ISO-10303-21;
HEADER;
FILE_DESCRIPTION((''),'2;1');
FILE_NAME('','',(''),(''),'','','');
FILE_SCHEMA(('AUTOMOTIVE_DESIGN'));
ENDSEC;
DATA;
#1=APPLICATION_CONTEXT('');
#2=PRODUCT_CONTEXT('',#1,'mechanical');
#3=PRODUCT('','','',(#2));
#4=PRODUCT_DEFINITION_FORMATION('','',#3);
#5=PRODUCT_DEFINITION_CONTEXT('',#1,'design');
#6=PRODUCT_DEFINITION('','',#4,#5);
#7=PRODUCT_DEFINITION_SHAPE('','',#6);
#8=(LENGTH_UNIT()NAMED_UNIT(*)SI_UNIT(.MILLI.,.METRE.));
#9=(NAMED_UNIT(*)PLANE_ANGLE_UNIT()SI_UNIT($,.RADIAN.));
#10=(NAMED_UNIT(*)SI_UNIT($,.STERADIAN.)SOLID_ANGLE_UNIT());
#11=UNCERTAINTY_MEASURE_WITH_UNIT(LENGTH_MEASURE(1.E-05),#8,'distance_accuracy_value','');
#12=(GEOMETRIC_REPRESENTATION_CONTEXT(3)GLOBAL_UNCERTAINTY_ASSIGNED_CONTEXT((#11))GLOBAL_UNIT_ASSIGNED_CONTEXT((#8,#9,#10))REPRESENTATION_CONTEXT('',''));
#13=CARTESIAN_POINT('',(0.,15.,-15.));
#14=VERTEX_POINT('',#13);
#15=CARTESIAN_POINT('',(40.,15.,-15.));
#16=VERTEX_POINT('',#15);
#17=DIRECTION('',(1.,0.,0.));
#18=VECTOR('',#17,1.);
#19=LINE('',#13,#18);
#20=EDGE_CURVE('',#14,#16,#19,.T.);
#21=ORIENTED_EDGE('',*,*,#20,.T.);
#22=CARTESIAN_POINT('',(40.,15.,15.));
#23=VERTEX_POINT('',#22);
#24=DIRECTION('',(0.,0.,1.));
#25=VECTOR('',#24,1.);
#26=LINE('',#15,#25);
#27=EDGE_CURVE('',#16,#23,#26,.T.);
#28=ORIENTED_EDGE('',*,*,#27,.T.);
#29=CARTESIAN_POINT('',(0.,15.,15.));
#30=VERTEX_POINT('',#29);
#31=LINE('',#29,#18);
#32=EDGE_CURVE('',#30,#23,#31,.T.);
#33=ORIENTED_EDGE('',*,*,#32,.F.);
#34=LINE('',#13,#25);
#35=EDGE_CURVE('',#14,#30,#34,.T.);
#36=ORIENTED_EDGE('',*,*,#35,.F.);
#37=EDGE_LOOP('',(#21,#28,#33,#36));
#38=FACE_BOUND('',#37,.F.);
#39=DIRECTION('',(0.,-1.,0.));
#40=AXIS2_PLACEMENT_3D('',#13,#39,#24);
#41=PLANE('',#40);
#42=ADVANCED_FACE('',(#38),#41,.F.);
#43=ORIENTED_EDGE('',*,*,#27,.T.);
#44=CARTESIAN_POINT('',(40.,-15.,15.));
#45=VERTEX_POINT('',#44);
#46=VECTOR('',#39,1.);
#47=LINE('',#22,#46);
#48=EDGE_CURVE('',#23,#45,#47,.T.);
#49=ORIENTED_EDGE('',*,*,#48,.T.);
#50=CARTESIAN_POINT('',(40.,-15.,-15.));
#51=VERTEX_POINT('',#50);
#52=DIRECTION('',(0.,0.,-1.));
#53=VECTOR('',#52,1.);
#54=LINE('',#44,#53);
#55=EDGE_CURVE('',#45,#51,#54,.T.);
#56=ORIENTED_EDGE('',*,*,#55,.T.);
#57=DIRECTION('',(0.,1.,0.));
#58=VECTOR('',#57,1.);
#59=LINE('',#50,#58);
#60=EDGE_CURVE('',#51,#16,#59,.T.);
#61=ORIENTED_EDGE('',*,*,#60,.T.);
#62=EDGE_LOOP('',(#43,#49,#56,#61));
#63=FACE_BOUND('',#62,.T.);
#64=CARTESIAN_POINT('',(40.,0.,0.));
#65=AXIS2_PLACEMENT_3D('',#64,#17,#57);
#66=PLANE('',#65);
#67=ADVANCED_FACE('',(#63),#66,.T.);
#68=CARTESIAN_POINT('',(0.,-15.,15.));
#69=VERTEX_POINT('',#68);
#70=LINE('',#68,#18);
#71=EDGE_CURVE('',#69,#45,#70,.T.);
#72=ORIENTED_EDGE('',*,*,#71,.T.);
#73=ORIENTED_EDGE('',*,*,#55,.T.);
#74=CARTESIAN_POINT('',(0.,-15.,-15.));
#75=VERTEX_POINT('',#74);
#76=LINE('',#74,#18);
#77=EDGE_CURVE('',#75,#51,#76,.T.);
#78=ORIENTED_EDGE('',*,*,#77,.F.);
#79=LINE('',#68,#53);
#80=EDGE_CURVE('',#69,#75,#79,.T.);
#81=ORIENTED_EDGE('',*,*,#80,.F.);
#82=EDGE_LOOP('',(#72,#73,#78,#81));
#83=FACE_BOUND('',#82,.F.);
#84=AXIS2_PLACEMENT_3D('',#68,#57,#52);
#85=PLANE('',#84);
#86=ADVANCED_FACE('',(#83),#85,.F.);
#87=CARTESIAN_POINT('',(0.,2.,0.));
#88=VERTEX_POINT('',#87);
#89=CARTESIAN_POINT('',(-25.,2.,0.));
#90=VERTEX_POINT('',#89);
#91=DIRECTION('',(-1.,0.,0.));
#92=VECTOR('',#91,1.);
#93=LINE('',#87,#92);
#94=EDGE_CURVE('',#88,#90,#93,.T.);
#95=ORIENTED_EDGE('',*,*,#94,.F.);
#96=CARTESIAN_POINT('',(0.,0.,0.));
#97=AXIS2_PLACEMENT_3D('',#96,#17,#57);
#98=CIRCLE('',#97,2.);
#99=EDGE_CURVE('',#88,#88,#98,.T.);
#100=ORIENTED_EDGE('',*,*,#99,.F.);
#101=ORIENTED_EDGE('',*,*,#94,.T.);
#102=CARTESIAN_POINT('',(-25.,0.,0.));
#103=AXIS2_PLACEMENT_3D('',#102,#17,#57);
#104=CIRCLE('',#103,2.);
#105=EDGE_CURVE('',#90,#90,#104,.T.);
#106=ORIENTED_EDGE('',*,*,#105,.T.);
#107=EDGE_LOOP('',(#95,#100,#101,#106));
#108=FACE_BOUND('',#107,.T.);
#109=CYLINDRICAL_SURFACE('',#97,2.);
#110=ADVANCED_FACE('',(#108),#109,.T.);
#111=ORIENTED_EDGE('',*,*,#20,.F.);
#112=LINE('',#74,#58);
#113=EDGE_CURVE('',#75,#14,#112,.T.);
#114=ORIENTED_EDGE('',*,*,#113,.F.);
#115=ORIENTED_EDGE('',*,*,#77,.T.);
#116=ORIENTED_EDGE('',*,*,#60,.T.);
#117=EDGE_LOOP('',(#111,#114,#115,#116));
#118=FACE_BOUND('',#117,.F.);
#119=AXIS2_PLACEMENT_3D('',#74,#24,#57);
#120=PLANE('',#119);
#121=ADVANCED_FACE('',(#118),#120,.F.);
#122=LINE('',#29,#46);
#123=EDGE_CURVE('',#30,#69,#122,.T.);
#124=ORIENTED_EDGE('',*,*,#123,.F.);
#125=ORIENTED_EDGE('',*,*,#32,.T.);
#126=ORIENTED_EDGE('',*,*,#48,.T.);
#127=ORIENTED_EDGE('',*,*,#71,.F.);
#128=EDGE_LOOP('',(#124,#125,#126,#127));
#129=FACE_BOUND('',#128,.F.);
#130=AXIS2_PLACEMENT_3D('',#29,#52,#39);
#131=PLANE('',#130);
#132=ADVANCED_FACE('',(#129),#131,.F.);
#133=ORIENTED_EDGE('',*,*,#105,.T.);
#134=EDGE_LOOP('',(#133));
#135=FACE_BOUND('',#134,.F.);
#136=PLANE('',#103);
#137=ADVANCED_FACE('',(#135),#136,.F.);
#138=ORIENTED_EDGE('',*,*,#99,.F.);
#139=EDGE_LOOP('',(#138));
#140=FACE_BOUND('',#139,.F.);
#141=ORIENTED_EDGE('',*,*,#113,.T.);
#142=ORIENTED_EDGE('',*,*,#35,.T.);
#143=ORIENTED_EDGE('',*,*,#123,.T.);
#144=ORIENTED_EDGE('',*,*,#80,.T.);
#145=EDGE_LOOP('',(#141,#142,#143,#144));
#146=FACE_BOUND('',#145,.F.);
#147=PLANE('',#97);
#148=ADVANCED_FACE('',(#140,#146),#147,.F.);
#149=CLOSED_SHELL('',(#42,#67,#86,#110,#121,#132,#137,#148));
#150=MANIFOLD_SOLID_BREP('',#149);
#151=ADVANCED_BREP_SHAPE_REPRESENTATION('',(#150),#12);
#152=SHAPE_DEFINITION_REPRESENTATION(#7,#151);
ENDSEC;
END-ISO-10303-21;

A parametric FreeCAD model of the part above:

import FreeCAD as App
import Part
import Sketcher
from FreeCAD import Vector

doc = App.newDocument("Part")
body = doc.addObject("PartDesign::Body", "Body")

# Sketch on YZ plane
sketch1 = body.newObject("Sketcher::SketchObject", "Sketch")
sketch1.AttachmentSupport = (doc.getObject("YZ_Plane"), [""])
sketch1.MapMode = "FlatFace"
sketch1.addGeometry([
    Part.LineSegment(Vector(15, -15, 0), Vector(15, 15, 0)),
    Part.LineSegment(Vector(15, 15, 0), Vector(-15, 15, 0)),
    Part.LineSegment(Vector(-15, 15, 0), Vector(-15, -15, 0)),
    Part.LineSegment(Vector(-15, -15, 0), Vector(15, -15, 0)),
], False)
sketch1.addConstraint([
    Sketcher.Constraint("Coincident", 0, 2, 1, 1),
    Sketcher.Constraint("Coincident", 1, 2, 2, 1),
    Sketcher.Constraint("Coincident", 2, 2, 3, 1),
    Sketcher.Constraint("Coincident", 3, 2, 0, 1),
    Sketcher.Constraint("Vertical", 0),
    Sketcher.Constraint("Horizontal", 1),
    Sketcher.Constraint("Vertical", 2),
    Sketcher.Constraint("Horizontal", 3),
    Sketcher.Constraint("Symmetric", 0, 2, 2, 2, -1, 1),
    Sketcher.Constraint("Equal", 3, 0),
    Sketcher.Constraint("DistanceX", 1, 2, 1, 1, 30.0),
])
pad1 = body.newObject("PartDesign::Pad", "Pad")
pad1.Profile = sketch1
pad1.Length = 40

# Sketch on YZ plane
sketch2 = body.newObject("Sketcher::SketchObject", "Sketch001")
sketch2.AttachmentSupport = (doc.getObject("YZ_Plane"), [""])
sketch2.MapMode = "FlatFace"
sketch2.addGeometry(Part.Circle(Vector(0, 0, 0), Vector(0, 0, 1), 2), False)
sketch2.addConstraint([
    Sketcher.Constraint("Coincident", 0, 3, -1, 1),
    Sketcher.Constraint("Diameter", 0, 4.0),
])
pad2 = body.newObject("PartDesign::Pad", "Pad001")
pad2.Profile = sketch2
pad2.Length = 50
pad2.Midplane = True

doc.recompute()
